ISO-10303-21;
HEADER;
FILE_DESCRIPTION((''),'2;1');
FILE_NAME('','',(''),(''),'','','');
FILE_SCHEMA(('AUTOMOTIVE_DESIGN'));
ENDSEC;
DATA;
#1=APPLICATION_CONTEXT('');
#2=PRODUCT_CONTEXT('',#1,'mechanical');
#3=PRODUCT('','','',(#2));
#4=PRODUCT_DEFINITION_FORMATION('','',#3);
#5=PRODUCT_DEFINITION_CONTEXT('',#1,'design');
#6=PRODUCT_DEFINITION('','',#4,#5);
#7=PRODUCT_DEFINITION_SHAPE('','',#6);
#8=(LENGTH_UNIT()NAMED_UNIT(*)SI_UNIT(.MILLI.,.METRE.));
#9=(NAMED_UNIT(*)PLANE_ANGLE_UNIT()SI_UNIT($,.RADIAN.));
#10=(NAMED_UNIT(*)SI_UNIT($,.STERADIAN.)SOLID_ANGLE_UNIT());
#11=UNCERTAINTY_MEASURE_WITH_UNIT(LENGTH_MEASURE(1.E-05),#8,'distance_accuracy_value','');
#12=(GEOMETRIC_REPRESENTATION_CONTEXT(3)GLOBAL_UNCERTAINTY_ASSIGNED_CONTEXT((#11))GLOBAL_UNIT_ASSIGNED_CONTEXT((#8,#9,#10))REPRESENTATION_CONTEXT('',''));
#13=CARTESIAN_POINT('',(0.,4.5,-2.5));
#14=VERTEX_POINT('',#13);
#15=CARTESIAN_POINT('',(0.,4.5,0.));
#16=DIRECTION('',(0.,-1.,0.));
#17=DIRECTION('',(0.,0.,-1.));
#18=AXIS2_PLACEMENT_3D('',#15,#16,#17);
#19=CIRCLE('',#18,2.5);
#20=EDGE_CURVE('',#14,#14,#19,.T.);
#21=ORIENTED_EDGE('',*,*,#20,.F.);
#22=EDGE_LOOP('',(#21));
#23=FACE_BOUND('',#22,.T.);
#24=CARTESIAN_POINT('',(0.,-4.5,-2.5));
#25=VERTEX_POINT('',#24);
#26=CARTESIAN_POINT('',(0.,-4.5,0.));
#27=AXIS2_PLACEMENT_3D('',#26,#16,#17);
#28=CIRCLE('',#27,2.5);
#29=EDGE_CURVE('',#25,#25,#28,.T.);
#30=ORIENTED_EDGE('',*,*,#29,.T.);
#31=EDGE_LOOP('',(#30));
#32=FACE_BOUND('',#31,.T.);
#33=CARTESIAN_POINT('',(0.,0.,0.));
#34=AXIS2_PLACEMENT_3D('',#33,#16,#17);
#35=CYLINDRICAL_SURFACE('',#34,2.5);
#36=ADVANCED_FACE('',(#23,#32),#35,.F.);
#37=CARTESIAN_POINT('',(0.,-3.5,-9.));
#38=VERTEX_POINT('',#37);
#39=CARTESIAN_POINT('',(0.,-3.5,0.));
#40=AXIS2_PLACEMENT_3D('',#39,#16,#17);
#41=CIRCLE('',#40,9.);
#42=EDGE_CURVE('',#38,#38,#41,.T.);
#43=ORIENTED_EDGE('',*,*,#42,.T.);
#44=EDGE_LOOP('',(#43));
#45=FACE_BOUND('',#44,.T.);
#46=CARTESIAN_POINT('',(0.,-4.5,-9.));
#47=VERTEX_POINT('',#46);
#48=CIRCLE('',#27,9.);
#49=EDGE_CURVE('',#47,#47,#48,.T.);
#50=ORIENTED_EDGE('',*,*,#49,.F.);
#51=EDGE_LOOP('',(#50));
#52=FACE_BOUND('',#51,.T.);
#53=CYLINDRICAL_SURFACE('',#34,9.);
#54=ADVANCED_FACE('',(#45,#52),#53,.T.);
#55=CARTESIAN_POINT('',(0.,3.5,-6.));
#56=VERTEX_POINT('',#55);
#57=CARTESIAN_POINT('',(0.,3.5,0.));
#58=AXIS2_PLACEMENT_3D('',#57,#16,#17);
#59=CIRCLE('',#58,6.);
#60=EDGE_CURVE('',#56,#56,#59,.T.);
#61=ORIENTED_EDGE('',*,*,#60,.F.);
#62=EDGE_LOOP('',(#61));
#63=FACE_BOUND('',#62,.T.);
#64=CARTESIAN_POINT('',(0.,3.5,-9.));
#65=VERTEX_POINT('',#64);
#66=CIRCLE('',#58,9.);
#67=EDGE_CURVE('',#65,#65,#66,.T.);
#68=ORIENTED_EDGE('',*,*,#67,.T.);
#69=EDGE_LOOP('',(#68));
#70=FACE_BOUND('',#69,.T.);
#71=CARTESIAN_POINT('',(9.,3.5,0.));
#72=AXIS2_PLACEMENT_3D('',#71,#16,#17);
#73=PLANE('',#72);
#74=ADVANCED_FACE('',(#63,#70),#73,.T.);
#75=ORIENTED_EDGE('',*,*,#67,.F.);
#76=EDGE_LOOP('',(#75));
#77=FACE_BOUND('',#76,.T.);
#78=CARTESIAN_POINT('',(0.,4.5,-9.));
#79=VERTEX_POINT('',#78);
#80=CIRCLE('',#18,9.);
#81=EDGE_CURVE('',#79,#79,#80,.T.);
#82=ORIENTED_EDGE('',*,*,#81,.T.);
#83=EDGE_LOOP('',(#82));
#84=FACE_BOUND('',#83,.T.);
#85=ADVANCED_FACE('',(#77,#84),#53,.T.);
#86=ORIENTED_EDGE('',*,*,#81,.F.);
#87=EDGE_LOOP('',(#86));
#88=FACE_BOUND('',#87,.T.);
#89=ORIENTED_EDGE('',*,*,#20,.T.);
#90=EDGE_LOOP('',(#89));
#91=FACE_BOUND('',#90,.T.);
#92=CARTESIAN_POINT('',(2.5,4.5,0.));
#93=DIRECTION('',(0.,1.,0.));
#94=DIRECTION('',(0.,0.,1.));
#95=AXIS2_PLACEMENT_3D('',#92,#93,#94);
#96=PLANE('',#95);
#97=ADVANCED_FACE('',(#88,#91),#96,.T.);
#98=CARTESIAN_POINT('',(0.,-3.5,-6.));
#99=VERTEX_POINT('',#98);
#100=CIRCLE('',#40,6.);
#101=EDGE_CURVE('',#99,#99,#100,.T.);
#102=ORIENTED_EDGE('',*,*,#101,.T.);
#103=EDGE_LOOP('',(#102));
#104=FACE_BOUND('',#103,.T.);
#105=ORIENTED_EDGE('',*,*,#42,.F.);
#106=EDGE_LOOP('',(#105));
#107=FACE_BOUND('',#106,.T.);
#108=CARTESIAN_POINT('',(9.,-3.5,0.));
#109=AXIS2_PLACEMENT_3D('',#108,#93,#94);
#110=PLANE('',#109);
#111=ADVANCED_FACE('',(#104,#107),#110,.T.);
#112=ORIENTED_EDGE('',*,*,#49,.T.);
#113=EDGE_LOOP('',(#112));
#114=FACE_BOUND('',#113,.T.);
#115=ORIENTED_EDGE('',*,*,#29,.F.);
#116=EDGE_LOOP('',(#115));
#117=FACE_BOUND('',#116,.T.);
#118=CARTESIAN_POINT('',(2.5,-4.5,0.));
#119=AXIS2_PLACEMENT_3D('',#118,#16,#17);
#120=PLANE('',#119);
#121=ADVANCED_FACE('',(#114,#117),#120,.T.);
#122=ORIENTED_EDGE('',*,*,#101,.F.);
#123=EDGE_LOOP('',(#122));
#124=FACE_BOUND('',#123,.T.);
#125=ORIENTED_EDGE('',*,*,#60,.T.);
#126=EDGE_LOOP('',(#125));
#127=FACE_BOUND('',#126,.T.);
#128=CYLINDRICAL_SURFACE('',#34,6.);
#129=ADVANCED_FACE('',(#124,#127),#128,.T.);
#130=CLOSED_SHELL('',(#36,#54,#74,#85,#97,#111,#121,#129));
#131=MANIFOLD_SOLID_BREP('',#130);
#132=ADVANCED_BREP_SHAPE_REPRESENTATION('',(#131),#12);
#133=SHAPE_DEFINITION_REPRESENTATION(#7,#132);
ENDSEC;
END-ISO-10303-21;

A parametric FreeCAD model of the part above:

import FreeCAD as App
import Part
import Sketcher
Q = App.Units.Quantity

doc = App.newDocument("Part")
params = doc.addObject("Spreadsheet::Sheet", "Params")
for row, (alias, value) in enumerate([
    ("sketch1_width", "3 mm"),
    ("sketch1_height", "9 mm"),
    ("sketch1_height2", "1 mm"),
    ("sketch1_width2", "6.5 mm"),
    ("revolution_angle", "360 deg"),
], start=1):
    params.set(f"A{row}", alias)
    params.set(f"B{row}", "=" + value)
    params.setAlias(f"B{row}", alias)

body = doc.addObject("PartDesign::Body", "Body")

sketch1 = doc.addObject("Sketcher::SketchObject", "Sketch")
body.addObject(sketch1)
sketch1.AttachmentSupport = (doc.XY_Plane, [""])
sketch1.MapMode = "FlatFace"
sketch1.addGeometry(Part.LineSegment(App.Vector(2.5, 4.5, 0), App.Vector(2.5, -4.5, 0)), False)
sketch1.addGeometry(Part.LineSegment(App.Vector(2.5, -4.5, 0), App.Vector(9, -4.5, 0)), False)
sketch1.addGeometry(Part.LineSegment(App.Vector(9, -4.5, 0), App.Vector(9, -3.5, 0)), False)
sketch1.addGeometry(Part.LineSegment(App.Vector(9, -3.5, 0), App.Vector(6, -3.5, 0)), False)
sketch1.addGeometry(Part.LineSegment(App.Vector(6, -3.5, 0), App.Vector(6, 3.5, 0)), False)
sketch1.addGeometry(Part.LineSegment(App.Vector(6, 3.5, 0), App.Vector(9, 3.5, 0)), False)
sketch1.addGeometry(Part.LineSegment(App.Vector(9, 3.5, 0), App.Vector(9, 4.5, 0)), False)
sketch1.addGeometry(Part.LineSegment(App.Vector(9, 4.5, 0), App.Vector(2.5, 4.5, 0)), False)
sketch1.addConstraint(Sketcher.Constraint("Coincident", 0, 2, 1, 1))
sketch1.addConstraint(Sketcher.Constraint("Coincident", 1, 2, 2, 1))
sketch1.addConstraint(Sketcher.Constraint("Coincident", 2, 2, 3, 1))
sketch1.addConstraint(Sketcher.Constraint("Coincident", 3, 2, 4, 1))
sketch1.addConstraint(Sketcher.Constraint("Coincident", 4, 2, 5, 1))
sketch1.addConstraint(Sketcher.Constraint("Coincident", 5, 2, 6, 1))
sketch1.addConstraint(Sketcher.Constraint("Coincident", 6, 2, 7, 1))
sketch1.addConstraint(Sketcher.Constraint("Coincident", 7, 2, 0, 1))
sketch1.addConstraint(Sketcher.Constraint("Vertical", 0))
sketch1.addConstraint(Sketcher.Constraint("Horizontal", 1))
sketch1.addConstraint(Sketcher.Constraint("Vertical", 2))
sketch1.addConstraint(Sketcher.Constraint("Horizontal", 3))
sketch1.addConstraint(Sketcher.Constraint("Vertical", 4))
sketch1.addConstraint(Sketcher.Constraint("Horizontal", 5))
sketch1.addConstraint(Sketcher.Constraint("Vertical", 6))
sketch1.addConstraint(Sketcher.Constraint("Horizontal", 7))
sketch1.addConstraint(Sketcher.Constraint("Symmetric", 2, 2, 5, 2, -1))
sketch1.addConstraint(Sketcher.Constraint("Equal", 2, 6))
sketch1.addConstraint(Sketcher.Constraint("DistanceX", 3, 2, 3, 1, Q("3 mm")))
sketch1.addConstraint(Sketcher.Constraint("DistanceY", 0, 2, 0, 1, Q("9 mm")))
sketch1.addConstraint(Sketcher.Constraint("DistanceY", 2, 1, 2, 2, Q("1 mm")))
sketch1.addConstraint(Sketcher.Constraint("DistanceX", 1, 1, 1, 2, Q("6.5 mm")))
sketch1.addConstraint(Sketcher.Constraint("DistanceX", -1, 1, 1, 2, Q("9 mm")))
sketch1.setExpression("Constraints[18]", "Params.sketch1_width")
sketch1.setExpression("Constraints[19]", "Params.sketch1_height")
sketch1.setExpression("Constraints[20]", "Params.sketch1_height2")
sketch1.setExpression("Constraints[21]", "Params.sketch1_width2")
revolution = doc.addObject("PartDesign::Revolution", "Revolution")
body.addObject(revolution)
revolution.Profile = sketch1
revolution.ReferenceAxis = (sketch1, ["V_Axis"])
revolution.setExpression("Angle", "Params.revolution_angle")

doc.recompute()
